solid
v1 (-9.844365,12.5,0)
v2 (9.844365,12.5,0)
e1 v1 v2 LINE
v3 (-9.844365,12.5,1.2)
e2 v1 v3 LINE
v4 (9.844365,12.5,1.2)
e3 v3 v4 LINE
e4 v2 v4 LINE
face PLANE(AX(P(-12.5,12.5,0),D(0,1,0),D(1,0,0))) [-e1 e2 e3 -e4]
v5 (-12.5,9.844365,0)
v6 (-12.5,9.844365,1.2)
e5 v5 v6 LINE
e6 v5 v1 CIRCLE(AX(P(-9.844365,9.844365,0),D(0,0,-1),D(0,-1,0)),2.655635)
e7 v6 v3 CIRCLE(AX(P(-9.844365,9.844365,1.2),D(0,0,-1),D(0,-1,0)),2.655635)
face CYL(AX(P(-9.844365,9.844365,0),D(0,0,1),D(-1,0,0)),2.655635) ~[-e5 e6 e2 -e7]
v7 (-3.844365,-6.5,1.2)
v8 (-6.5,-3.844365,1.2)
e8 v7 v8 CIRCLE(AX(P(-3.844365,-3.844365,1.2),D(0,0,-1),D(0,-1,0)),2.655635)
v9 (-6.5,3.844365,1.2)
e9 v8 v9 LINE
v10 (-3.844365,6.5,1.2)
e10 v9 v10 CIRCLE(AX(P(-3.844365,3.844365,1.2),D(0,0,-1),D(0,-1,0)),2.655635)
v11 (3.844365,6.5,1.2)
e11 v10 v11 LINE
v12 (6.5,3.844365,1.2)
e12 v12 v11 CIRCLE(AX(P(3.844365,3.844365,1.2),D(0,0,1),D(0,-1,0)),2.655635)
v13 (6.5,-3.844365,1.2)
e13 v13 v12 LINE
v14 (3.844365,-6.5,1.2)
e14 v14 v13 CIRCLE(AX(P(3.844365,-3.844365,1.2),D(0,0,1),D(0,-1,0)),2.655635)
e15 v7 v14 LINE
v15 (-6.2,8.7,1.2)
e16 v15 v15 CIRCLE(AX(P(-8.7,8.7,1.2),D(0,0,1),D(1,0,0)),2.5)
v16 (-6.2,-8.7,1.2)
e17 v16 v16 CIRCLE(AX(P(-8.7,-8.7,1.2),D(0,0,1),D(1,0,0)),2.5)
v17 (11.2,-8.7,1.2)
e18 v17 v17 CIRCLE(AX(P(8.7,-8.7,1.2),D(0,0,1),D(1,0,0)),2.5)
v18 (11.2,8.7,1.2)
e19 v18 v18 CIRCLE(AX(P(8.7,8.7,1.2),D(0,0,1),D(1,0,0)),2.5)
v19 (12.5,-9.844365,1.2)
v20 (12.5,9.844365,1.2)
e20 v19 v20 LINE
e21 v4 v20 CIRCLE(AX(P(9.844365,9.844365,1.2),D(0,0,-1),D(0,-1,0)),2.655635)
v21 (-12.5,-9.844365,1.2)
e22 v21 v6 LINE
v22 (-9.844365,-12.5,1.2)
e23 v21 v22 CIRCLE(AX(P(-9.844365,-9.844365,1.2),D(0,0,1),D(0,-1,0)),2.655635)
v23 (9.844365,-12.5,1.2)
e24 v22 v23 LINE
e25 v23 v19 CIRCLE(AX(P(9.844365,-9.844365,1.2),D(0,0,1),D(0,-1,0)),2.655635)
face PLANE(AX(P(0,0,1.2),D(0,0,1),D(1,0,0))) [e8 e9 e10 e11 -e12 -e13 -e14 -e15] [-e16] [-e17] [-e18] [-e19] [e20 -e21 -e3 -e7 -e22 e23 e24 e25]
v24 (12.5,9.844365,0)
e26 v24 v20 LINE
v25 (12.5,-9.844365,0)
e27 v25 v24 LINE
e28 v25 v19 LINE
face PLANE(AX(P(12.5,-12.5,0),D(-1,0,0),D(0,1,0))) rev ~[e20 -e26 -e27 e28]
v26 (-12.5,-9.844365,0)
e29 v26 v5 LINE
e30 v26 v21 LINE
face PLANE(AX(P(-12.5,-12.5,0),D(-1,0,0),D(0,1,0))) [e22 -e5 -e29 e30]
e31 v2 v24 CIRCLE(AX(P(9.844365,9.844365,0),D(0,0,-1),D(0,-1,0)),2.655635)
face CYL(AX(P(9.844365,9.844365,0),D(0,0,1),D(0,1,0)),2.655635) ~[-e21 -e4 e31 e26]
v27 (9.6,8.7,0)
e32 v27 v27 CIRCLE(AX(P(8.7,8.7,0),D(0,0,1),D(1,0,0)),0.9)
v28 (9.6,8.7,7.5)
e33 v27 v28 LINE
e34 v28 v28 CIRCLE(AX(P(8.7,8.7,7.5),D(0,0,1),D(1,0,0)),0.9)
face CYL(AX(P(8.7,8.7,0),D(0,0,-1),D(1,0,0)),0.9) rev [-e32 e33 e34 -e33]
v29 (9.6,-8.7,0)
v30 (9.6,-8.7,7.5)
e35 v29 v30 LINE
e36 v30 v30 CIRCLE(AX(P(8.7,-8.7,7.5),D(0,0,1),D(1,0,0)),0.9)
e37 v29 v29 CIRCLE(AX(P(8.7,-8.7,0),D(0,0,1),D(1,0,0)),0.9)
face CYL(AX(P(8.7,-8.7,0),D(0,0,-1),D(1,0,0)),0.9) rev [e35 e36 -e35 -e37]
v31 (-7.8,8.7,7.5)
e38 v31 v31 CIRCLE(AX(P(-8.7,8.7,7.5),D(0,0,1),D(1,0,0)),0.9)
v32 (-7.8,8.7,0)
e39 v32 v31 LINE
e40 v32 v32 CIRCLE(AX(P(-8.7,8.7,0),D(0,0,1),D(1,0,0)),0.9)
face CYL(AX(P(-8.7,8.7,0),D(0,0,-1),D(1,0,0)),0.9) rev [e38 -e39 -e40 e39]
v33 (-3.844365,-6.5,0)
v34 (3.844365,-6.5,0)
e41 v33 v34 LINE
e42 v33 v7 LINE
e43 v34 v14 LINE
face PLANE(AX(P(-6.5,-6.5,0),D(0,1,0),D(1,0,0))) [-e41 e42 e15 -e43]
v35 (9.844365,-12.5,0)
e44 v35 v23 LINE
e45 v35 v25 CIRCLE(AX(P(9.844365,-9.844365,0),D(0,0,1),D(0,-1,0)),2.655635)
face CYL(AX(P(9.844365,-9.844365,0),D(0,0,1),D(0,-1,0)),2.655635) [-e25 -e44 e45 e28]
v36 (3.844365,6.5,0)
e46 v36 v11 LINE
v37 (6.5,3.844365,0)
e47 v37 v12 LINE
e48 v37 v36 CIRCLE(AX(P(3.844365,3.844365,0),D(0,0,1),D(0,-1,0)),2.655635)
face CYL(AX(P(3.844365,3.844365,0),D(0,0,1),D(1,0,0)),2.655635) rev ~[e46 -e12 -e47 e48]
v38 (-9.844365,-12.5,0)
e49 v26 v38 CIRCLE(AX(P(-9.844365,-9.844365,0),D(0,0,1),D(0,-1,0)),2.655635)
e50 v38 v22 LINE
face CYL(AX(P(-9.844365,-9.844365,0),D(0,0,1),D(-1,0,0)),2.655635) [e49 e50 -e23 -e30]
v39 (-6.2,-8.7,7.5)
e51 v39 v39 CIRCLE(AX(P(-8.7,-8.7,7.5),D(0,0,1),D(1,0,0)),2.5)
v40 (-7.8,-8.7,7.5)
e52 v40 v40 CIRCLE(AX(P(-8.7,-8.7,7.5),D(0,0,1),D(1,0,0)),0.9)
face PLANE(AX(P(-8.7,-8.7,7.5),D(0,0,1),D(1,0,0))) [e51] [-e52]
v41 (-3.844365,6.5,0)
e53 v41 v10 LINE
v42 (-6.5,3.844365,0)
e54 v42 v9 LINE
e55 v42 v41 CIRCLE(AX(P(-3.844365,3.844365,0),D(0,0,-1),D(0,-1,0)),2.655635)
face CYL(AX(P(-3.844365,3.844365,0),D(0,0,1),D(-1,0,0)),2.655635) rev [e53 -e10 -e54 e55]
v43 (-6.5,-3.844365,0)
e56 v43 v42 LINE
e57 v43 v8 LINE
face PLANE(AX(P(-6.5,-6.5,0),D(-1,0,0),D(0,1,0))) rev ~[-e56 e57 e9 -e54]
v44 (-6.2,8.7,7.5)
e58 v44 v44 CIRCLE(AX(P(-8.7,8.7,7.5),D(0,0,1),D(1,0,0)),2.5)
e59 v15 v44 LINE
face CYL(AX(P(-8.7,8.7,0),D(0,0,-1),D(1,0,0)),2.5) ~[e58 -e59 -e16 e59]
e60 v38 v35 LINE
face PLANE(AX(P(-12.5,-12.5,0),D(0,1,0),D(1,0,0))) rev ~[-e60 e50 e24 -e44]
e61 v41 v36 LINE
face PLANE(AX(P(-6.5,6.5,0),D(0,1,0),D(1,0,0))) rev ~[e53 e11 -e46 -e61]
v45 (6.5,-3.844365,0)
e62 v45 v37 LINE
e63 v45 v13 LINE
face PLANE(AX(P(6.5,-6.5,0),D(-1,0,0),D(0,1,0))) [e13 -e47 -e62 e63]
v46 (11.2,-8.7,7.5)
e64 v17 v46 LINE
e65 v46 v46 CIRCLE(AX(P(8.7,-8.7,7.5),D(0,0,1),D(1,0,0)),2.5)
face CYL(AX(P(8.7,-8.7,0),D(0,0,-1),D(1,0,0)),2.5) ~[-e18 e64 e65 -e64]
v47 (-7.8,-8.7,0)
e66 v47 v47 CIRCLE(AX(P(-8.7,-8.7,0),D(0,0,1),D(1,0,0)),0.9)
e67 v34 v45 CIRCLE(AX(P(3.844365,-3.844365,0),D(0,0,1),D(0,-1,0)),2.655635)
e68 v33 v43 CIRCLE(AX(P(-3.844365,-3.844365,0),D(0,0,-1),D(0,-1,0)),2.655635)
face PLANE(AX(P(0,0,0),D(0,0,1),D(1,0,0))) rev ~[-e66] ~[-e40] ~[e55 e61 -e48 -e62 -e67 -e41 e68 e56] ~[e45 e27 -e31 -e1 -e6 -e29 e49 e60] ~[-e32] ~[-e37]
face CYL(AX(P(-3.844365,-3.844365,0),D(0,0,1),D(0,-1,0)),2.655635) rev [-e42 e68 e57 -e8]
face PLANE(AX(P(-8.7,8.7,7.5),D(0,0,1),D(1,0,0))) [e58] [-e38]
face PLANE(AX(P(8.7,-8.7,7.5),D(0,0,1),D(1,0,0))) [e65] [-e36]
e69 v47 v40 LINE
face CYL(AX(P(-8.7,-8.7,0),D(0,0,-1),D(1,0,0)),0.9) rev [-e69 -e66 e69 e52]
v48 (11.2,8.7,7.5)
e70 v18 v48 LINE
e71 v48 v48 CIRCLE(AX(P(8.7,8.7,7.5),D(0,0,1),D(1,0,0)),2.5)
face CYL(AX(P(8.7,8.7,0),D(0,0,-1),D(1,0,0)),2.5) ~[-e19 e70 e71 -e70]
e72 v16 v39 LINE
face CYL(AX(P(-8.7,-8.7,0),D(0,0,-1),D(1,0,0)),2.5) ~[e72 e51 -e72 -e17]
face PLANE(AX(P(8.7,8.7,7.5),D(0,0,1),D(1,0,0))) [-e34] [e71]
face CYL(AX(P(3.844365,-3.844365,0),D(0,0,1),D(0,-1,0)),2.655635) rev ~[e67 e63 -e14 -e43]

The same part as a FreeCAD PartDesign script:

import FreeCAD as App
import Part
import Sketcher
from FreeCAD import Vector


def edges_at(feature, points):
    """Names of the edges that pass closest to the given points."""
    edges = feature.Shape.Edges
    near = lambda p: min(range(len(edges)), key=lambda i: edges[i].distToShape(Part.Vertex(*p))[0])
    return sorted({f"Edge{near(p) + 1}" for p in points})


def add_polygon(sketch, points):
    """Adds a closed chain of lines whose ends are joined by coincident constraints."""
    first, n = sketch.GeometryCount, len(points)
    for a, b in zip(points, points[1:] + points[:1]):
        sketch.addGeometry(Part.LineSegment(App.Vector(*a, 0), App.Vector(*b, 0)), False)
    for i in range(n):
        sketch.addConstraint(Sketcher.Constraint("Coincident", first + i, 2, first + (i + 1) % n, 1))

doc = App.newDocument("Part")
body = doc.addObject("PartDesign::Body", "Body")

sketch1 = body.newObject("Sketcher::SketchObject", "Sketch")
sketch1.AttachmentSupport = (doc.getObject("XY_Plane"), [""])
sketch1.MapMode = "FlatFace"
add_polygon(sketch1, [(-12.5, 12.5), (-12.5, -12.5), (12.5, -12.5), (12.5, 12.5)])
sketch1.addGeometry(Part.Circle(Vector(-8.7, -8.7, 0), Vector(0, 0, 1), 2.5), False)
sketch1.addGeometry(Part.Circle(Vector(8.7, -8.7, 0), Vector(0, 0, 1), 2.5), False)
sketch1.addGeometry(Part.Circle(Vector(-8.7, 8.7, 0), Vector(0, 0, 1), 2.5), False)
add_polygon(sketch1, [(6.5, -6.5), (-6.5, -6.5), (-6.5, 6.5), (6.5, 6.5)])
sketch1.addGeometry(Part.Circle(Vector(8.7, 8.7, 0), Vector(0, 0, 1), 2.5), False)
sketch1.addConstraint([
    Sketcher.Constraint("Vertical", 0),
    Sketcher.Constraint("Horizontal", 1),
    Sketcher.Constraint("Vertical", 2),
    Sketcher.Constraint("Horizontal", 3),
    Sketcher.Constraint("Horizontal", 7),
    Sketcher.Constraint("Vertical", 8),
    Sketcher.Constraint("Horizontal", 9),
    Sketcher.Constraint("Vertical", 10),
    Sketcher.Constraint("Equal", 4, 5),
    Sketcher.Constraint("Equal", 5, 6),
    Sketcher.Constraint("Equal", 6, 11),
    Sketcher.Constraint("Symmetric", 5, 3, 6, 3, -1, 1),
    Sketcher.Constraint("Symmetric", 4, 3, 11, 3, -1, 1),
    Sketcher.Constraint("Symmetric", 0, 2, 2, 2, -1, 1),
    Sketcher.Constraint("Symmetric", 7, 2, 9, 2, -1, 1),
    Sketcher.Constraint("Symmetric", 4, 3, 5, 3, -2),
    Sketcher.Constraint("Equal", 3, 0),
    Sketcher.Constraint("Equal", 9, 8),
    Sketcher.Constraint("Diameter", 4, 5.0),
    Sketcher.Constraint("DistanceX", 1, 1, 1, 2, 25.0),
    Sketcher.Constraint("DistanceX", 7, 2, 7, 1, 13.0),
    Sketcher.Constraint("DistanceX", 4, 3, -1, 1, 8.7),
    Sketcher.Constraint("DistanceY", 4, 3, -1, 1, 8.7),
])
pad1 = body.newObject("PartDesign::Pad", "Pad")
pad1.Profile = sketch1
pad1.Length = 1.2

sketch2 = body.newObject("Sketcher::SketchObject", "Sketch001")
sketch2.AttachmentSupport = (doc.getObject("XY_Plane"), [""])
sketch2.MapMode = "FlatFace"
sketch2.addGeometry([
    Part.Circle(Vector(-8.7, 8.7, 0), Vector(0, 0, 1), 2.5),
    Part.Circle(Vector(-8.7, 8.7, 0), Vector(0, 0, 1), 0.9),
    Part.Circle(Vector(8.7, 8.7, 0), Vector(0, 0, 1), 2.5),
    Part.Circle(Vector(8.7, 8.7, 0), Vector(0, 0, 1), 0.9),
    Part.Circle(Vector(-8.7, -8.7, 0), Vector(0, 0, 1), 2.5),
    Part.Circle(Vector(-8.7, -8.7, 0), Vector(0, 0, 1), 0.9),
    Part.Circle(Vector(8.7, -8.7, 0), Vector(0, 0, 1), 2.5),
    Part.Circle(Vector(8.7, -8.7, 0), Vector(0, 0, 1), 0.9),
], False)
sketch2.addConstraint([
    Sketcher.Constraint("Coincident", 1, 3, 0, 3),
    Sketcher.Constraint("Coincident", 3, 3, 2, 3),
    Sketcher.Constraint("Coincident", 5, 3, 4, 3),
    Sketcher.Constraint("Coincident", 7, 3, 6, 3),
    Sketcher.Constraint("Equal", 0, 2),
    Sketcher.Constraint("Equal", 1, 3),
    Sketcher.Constraint("Equal", 2, 4),
    Sketcher.Constraint("Equal", 3, 5),
    Sketcher.Constraint("Equal", 4, 6),
    Sketcher.Constraint("Equal", 5, 7),
    Sketcher.Constraint("Symmetric", 2, 3, 4, 3, -1, 1),
    Sketcher.Constraint("Symmetric", 0, 3, 6, 3, -1, 1),
    Sketcher.Constraint("Symmetric", 0, 3, 2, 3, -2),
    Sketcher.Constraint("Diameter", 0, 5.0),
    Sketcher.Constraint("Diameter", 1, 1.8),
    Sketcher.Constraint("DistanceX", 0, 3, -1, 1, 8.7),
    Sketcher.Constraint("DistanceY", -1, 1, 0, 3, 8.7),
])
pad2 = body.newObject("PartDesign::Pad", "Pad001")
pad2.Profile = sketch2
pad2.Length = 7.5
doc.recompute()

fillet = body.newObject("PartDesign::Fillet", "Fillet")
fillet.Base = (pad2, edges_at(pad2, [
    (12.5, -12.5, 0.6),
    (12.5, 12.5, 0.6),
    (-12.5, 12.5, 0.6),
    (-12.5, -12.5, 0.6),
    (-6.5, 6.5, 0.6),
    (-6.5, -6.5, 0.6),
    (6.5, -6.5, 0.6),
    (6.5, 6.5, 0.6),
]))
fillet.Radius = 2.655635

doc.recompute()
